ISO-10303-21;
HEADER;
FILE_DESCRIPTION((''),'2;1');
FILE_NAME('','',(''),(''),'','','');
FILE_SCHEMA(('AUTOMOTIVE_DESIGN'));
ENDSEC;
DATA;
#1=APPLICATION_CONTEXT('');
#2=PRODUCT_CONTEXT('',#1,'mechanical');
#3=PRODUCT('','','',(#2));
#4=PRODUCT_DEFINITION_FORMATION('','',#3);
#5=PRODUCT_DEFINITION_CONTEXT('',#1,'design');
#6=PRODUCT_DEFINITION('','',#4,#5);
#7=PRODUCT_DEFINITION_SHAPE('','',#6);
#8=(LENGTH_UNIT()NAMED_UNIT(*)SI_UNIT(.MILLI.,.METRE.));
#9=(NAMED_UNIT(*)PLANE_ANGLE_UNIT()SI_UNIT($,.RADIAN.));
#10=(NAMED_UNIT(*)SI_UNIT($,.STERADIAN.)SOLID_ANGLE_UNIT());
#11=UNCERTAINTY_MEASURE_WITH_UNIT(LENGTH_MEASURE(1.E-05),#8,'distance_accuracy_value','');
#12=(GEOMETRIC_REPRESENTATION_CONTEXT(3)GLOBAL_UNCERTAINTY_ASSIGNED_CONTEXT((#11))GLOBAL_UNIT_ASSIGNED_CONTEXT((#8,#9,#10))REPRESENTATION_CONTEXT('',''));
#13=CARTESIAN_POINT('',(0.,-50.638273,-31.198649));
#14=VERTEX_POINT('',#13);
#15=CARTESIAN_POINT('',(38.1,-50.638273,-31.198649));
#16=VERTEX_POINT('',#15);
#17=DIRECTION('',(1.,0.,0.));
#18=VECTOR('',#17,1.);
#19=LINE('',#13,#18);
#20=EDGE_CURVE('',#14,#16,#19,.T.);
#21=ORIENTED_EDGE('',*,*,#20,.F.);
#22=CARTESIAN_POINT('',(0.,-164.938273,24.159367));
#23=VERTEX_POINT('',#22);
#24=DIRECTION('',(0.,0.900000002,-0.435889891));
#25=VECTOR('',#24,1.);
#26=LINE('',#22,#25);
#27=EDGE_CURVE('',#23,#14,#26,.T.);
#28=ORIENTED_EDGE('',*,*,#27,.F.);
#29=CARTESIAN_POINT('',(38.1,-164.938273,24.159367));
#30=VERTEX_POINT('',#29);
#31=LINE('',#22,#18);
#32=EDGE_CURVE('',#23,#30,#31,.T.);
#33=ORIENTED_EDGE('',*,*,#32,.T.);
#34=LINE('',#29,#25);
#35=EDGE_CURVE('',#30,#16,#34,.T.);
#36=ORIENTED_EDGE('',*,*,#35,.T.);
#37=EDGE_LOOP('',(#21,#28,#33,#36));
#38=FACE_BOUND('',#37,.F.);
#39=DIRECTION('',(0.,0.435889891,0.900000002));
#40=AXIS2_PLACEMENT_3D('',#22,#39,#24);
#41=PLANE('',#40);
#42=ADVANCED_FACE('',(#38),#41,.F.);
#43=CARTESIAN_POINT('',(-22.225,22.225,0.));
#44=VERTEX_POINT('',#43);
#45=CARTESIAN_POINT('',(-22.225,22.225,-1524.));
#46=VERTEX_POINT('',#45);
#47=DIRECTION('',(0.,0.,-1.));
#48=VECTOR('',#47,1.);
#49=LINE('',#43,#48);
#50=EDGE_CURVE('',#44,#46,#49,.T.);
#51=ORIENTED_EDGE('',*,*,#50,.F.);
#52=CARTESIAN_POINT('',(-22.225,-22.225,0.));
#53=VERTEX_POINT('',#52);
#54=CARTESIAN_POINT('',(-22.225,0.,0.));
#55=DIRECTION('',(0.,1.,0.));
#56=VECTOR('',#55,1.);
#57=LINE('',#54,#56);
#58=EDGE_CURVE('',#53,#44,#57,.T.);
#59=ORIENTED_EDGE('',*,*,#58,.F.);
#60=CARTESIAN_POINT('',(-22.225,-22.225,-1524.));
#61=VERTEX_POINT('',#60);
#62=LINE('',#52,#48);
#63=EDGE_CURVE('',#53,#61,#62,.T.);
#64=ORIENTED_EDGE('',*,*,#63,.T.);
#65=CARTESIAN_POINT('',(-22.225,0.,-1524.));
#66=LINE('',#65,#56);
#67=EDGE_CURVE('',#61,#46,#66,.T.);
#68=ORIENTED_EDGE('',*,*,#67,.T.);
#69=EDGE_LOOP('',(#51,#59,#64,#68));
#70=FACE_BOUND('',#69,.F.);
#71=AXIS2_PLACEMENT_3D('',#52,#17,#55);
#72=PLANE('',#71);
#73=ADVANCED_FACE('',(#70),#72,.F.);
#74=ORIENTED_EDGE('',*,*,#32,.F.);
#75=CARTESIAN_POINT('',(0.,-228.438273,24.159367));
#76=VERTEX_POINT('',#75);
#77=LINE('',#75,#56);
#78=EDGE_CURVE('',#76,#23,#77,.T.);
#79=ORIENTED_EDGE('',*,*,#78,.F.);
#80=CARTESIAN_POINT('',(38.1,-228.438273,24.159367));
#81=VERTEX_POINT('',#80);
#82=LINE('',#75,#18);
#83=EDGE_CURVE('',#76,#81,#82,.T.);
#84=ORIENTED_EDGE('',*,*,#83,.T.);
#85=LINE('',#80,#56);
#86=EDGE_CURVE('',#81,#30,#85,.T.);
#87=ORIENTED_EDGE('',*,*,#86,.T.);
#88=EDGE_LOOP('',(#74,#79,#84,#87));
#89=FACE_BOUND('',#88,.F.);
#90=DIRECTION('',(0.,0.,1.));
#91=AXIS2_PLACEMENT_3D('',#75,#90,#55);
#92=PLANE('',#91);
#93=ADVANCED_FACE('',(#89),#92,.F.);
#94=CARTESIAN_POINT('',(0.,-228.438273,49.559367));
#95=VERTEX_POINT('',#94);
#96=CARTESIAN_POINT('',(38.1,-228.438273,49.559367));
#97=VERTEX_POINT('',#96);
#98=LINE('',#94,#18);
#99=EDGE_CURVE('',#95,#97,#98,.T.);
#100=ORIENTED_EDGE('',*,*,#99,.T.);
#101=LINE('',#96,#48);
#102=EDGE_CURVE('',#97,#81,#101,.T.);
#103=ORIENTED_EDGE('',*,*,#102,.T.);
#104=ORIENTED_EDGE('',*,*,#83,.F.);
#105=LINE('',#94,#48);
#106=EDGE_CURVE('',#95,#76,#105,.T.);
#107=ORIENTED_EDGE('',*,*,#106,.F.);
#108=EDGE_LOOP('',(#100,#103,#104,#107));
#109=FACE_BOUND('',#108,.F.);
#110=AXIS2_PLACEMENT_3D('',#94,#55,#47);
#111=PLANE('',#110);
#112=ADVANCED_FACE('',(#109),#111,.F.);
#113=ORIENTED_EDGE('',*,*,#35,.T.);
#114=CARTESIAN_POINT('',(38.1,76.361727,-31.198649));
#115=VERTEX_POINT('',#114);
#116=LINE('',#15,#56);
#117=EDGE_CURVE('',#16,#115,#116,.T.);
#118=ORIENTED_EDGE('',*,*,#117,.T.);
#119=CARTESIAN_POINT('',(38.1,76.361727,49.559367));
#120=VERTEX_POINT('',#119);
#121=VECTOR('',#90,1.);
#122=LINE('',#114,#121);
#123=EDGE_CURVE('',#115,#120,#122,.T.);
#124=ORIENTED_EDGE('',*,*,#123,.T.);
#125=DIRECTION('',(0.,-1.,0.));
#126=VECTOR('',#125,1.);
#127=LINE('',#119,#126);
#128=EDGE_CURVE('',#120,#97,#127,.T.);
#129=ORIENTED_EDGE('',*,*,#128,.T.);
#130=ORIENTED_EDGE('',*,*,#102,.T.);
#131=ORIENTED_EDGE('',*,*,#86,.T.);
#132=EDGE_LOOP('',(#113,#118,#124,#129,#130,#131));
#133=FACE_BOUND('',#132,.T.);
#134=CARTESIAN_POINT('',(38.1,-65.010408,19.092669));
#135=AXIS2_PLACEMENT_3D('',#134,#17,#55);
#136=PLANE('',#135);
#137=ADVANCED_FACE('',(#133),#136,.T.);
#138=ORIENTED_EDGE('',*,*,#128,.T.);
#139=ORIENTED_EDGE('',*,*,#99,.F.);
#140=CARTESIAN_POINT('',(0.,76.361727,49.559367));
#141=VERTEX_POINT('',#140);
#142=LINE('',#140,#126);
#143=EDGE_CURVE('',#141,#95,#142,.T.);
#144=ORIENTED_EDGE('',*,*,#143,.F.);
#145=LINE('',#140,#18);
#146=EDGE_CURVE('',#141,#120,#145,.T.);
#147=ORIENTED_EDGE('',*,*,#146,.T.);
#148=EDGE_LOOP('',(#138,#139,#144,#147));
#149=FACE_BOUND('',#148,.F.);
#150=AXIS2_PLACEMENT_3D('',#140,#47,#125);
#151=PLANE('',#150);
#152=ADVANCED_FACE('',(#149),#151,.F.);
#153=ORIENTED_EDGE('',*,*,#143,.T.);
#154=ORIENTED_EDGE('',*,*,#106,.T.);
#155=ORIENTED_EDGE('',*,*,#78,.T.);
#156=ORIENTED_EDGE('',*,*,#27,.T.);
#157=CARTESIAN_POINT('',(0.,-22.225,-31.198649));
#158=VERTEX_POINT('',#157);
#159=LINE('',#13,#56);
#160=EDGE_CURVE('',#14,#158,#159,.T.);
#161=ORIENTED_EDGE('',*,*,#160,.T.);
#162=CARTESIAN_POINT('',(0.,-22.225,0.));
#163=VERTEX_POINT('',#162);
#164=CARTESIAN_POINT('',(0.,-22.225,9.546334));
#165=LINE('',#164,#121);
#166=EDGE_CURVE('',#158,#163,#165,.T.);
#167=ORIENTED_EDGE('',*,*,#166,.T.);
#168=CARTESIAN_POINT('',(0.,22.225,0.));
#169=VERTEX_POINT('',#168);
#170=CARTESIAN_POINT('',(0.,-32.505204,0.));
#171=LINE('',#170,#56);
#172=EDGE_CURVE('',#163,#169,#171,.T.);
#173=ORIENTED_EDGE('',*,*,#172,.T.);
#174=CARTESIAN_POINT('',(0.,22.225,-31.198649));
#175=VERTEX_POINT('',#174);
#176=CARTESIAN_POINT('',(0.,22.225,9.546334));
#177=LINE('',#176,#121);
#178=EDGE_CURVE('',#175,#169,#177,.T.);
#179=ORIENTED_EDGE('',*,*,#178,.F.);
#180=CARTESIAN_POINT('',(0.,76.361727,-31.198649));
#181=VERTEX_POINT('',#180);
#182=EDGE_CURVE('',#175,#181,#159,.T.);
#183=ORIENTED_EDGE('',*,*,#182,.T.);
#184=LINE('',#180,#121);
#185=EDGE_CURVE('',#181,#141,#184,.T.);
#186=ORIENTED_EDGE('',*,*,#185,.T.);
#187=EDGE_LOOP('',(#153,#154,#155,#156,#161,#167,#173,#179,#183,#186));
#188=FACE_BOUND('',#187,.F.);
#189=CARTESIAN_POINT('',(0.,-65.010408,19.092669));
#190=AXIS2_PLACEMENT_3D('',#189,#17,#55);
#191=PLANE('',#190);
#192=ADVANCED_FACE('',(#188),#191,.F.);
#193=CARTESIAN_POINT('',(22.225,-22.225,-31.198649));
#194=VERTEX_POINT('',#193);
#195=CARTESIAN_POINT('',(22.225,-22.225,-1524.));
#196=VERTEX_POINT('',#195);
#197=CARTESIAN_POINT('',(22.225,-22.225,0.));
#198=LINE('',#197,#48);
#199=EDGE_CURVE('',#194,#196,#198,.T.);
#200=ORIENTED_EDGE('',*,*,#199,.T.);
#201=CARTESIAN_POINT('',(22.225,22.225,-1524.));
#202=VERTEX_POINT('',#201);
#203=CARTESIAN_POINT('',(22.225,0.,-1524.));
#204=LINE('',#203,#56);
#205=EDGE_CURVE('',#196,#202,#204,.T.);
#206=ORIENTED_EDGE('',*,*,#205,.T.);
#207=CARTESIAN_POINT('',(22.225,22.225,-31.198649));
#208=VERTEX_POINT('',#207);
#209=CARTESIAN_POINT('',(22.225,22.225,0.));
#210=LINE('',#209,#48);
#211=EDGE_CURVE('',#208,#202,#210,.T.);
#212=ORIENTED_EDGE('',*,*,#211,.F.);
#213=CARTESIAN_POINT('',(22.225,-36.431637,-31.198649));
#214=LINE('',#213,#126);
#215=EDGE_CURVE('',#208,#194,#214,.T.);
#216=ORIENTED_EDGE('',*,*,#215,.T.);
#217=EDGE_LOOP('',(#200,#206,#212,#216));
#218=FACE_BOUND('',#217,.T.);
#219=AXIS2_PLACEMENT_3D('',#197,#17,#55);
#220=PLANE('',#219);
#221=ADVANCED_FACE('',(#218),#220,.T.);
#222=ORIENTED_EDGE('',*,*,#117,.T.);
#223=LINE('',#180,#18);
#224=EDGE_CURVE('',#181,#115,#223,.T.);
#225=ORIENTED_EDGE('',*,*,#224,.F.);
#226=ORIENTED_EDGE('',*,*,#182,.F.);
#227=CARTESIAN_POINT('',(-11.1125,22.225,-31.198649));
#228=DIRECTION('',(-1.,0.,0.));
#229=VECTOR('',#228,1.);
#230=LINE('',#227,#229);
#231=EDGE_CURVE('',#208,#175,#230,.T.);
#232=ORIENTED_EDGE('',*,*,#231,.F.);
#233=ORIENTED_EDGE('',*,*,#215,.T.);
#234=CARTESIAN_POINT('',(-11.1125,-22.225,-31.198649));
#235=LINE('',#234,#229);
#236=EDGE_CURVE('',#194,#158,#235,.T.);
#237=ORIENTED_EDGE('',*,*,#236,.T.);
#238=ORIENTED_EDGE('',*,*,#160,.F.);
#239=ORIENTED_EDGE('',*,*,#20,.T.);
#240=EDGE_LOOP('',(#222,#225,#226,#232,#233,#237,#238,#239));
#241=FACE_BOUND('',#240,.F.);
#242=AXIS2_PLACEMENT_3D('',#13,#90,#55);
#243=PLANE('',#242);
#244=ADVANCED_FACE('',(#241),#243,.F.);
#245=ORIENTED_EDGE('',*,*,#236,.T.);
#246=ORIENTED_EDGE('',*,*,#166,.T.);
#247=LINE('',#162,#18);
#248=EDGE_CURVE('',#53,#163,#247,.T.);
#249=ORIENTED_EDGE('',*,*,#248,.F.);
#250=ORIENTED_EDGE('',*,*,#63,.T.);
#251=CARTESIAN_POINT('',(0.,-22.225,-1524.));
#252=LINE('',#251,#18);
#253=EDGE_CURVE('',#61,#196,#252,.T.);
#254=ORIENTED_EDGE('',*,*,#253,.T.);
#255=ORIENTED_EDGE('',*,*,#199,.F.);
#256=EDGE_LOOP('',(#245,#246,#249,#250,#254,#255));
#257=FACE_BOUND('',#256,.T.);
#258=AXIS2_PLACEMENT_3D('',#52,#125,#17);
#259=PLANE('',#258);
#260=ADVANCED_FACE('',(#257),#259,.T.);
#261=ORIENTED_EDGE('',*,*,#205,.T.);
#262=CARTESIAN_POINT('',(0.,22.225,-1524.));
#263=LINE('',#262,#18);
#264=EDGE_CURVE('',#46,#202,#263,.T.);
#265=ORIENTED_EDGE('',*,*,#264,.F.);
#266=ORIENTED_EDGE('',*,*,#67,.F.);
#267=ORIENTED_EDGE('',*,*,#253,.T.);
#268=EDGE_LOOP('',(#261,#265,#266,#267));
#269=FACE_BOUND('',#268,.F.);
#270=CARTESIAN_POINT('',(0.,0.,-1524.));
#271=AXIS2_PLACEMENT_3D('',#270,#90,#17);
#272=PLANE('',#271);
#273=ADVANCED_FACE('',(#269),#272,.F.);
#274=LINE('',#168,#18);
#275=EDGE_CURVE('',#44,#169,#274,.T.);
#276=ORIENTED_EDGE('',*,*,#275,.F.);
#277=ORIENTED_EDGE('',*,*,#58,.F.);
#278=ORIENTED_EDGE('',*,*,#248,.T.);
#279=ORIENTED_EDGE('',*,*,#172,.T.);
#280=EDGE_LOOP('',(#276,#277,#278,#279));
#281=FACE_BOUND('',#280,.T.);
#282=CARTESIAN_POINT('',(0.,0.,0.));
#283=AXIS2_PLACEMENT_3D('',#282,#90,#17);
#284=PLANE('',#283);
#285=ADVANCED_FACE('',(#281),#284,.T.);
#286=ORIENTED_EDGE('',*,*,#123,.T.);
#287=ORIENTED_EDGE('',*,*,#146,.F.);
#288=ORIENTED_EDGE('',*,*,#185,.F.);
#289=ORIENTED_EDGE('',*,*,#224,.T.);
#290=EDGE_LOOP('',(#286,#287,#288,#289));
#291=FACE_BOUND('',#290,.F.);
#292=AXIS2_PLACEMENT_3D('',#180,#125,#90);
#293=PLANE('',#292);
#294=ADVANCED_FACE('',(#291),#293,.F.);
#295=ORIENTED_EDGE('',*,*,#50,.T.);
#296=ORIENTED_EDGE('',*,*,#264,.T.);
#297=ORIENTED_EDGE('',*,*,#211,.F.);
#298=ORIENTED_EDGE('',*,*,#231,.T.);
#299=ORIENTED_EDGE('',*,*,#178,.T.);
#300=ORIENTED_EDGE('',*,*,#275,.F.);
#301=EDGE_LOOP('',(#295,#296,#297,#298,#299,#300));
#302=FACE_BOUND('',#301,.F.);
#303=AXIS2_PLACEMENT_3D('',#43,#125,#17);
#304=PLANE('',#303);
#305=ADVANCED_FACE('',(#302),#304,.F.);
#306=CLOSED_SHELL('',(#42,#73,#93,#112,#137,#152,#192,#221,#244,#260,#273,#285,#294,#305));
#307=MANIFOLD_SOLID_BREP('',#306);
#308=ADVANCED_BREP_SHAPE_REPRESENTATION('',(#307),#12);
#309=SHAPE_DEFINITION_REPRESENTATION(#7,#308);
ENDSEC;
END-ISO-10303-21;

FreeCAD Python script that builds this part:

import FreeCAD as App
import Part
import Sketcher

V = App.Vector
Q = App.Units.Quantity

doc = App.newDocument("Part")
body = doc.addObject("PartDesign::Body", "Body")

sketch1 = body.newObject("Sketcher::SketchObject", "Sketch")
sketch1.AttachmentSupport = (doc.getObject("XY_Plane"), [""])
sketch1.MapMode = "FlatFace"
sketch1.addGeometry([
    Part.LineSegment(V(-22, 22, 0), V(-22, -22, 0)),
    Part.LineSegment(V(-22, -22, 0), V(22, -22, 0)),
    Part.LineSegment(V(22, -22, 0), V(22, 22, 0)),
    Part.LineSegment(V(22, 22, 0), V(-22, 22, 0)),
], False)
sketch1.addConstraint([
    Sketcher.Constraint("Coincident", 0, 2, 1, 1),
    Sketcher.Constraint("Coincident", 1, 2, 2, 1),
    Sketcher.Constraint("Coincident", 2, 2, 3, 1),
    Sketcher.Constraint("Coincident", 3, 2, 0, 1),
    Sketcher.Constraint("Vertical", 0),
    Sketcher.Constraint("Horizontal", 1),
    Sketcher.Constraint("Vertical", 2),
    Sketcher.Constraint("Horizontal", 3),
    Sketcher.Constraint("Symmetric", 0, 2, 2, 2, -1, 1),
    Sketcher.Constraint("Equal", 3, 0),
    Sketcher.Constraint("DistanceX", 1, 1, 1, 2, Q("1.75 in")),
])
pad1 = body.newObject("PartDesign::Pad", "Pad")
pad1.Profile = sketch1
pad1.Length = Q("60 in")
pad1.Reversed = True

sketch2 = body.newObject("Sketcher::SketchObject", "Sketch001")
sketch2.AttachmentSupport = (doc.getObject("YZ_Plane"), [""])
sketch2.MapMode = "FlatFace"
sketch2.addGeometry([
    Part.LineSegment(V(76, -31, 0), V(76, 50, 0)),
    Part.LineSegment(V(76, 50, 0), V(-228, 50, 0)),
    Part.LineSegment(V(-228, 50, 0), V(-228, 24, 0)),
    Part.LineSegment(V(-228, 24, 0), V(-165, 24, 0)),
    Part.LineSegment(V(-165, 24, 0), V(-51, -31, 0)),
    Part.LineSegment(V(-51, -31, 0), V(76, -31, 0)),
], False)
sketch2.addConstraint([
    Sketcher.Constraint("Coincident", 0, 2, 1, 1),
    Sketcher.Constraint("Coincident", 1, 2, 2, 1),
    Sketcher.Constraint("Coincident", 2, 2, 3, 1),
    Sketcher.Constraint("Coincident", 3, 2, 4, 1),
    Sketcher.Constraint("Coincident", 4, 2, 5, 1),
    Sketcher.Constraint("Coincident", 5, 2, 0, 1),
    Sketcher.Constraint("Vertical", 0),
    Sketcher.Constraint("Horizontal", 1),
    Sketcher.Constraint("Vertical", 2),
    Sketcher.Constraint("Horizontal", 3),
    Sketcher.Constraint("Horizontal", 5),
    Sketcher.Constraint("DistanceX", 1, 2, 1, 1, Q("12 in")),
    Sketcher.Constraint("DistanceX", 5, 1, 5, 2, Q("5 in")),
    Sketcher.Constraint("DistanceY", 2, 2, 2, 1, Q("1 in")),
    Sketcher.Constraint("Distance", 4, Q("5 in")),
    Sketcher.Constraint("DistanceX", 3, 1, 3, 2, Q("2.5 in")),
    Sketcher.Constraint("DistanceY", 4, 2, -1, 1, Q("31.198649 mm")),
    Sketcher.Constraint("DistanceX", -1, 1, 0, 2, Q("76.361727 mm")),
])
pad2 = body.newObject("PartDesign::Pad", "Pad001")
pad2.Profile = sketch2
pad2.Length = Q("1.5 in")

doc.recompute()
